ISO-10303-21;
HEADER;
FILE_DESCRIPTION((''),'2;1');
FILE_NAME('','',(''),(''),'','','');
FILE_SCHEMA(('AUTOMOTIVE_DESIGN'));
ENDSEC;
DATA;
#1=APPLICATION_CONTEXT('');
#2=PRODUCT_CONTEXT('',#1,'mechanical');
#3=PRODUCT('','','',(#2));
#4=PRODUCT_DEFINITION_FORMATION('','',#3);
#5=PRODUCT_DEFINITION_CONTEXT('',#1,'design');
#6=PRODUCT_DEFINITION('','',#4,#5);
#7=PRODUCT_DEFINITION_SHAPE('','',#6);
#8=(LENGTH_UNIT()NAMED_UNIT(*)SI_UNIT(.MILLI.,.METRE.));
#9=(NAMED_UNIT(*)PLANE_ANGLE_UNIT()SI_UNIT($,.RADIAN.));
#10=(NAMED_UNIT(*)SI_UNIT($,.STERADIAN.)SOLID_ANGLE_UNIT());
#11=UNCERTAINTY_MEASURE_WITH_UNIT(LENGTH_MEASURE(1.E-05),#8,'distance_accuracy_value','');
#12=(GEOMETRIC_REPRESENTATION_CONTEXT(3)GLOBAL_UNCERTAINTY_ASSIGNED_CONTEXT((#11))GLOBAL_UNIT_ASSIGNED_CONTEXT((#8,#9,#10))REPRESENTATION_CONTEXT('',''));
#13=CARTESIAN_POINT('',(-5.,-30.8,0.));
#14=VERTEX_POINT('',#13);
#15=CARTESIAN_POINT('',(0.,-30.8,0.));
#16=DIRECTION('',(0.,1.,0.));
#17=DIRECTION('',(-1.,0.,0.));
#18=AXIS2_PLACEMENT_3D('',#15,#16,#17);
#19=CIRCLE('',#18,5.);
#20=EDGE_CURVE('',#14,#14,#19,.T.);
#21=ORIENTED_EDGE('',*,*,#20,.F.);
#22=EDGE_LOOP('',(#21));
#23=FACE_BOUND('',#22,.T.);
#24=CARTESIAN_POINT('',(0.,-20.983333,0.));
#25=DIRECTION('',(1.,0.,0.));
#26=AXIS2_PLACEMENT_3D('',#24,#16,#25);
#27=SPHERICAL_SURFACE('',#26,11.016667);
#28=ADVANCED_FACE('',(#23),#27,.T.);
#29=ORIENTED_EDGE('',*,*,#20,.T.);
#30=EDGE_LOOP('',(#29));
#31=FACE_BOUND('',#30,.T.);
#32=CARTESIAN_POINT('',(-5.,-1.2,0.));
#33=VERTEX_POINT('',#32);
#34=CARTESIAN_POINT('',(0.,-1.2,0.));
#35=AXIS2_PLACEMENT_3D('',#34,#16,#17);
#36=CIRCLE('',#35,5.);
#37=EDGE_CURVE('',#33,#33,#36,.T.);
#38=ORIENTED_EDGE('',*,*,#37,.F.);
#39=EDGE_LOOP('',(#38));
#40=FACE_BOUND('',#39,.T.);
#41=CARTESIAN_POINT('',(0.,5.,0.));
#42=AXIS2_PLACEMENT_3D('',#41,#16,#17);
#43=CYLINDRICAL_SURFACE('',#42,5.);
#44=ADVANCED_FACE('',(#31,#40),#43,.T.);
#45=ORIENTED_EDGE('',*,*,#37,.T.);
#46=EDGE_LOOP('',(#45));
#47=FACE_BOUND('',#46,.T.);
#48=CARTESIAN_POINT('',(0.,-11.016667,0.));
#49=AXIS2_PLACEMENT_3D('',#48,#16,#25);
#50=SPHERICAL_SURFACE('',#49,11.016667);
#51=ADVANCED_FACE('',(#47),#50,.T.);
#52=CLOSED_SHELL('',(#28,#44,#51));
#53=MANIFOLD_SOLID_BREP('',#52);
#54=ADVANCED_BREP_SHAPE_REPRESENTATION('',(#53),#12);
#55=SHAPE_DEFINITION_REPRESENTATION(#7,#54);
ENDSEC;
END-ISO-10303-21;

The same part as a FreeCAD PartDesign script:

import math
import FreeCAD as App
import Part
import Sketcher

V = App.Vector

doc = App.newDocument("Part")
body = doc.addObject("PartDesign::Body", "Body")

# Sketch on XY plane
sketch1 = doc.addObject("Sketcher::SketchObject", "Sketch")
body.addObject(sketch1)
sketch1.AttachmentSupport = (doc.XY_Plane, [""])
sketch1.MapMode = "FlatFace"
sketch1.addGeometry([
    Part.LineSegment(V(5, -31, 0), V(5, -1, 0)),
    Part.ArcOfCircle(Part.Circle(V(0, -11, 0), V(0, 0, 1), 11), math.radians(63), math.radians(90)),
    Part.LineSegment(V(0, 0, 0), V(0, -32, 0)),
    Part.ArcOfCircle(Part.Circle(V(0, -21, 0), V(0, 0, 1), 11), math.radians(-90), math.radians(-63)),
], False)
sketch1.addConstraint([
    Sketcher.Constraint("Coincident", 0, 2, 1, 1),
    Sketcher.Constraint("Coincident", 1, 2, 2, 1),
    Sketcher.Constraint("Coincident", 2, 2, 3, 1),
    Sketcher.Constraint("Coincident", 3, 2, 0, 1),
    Sketcher.Constraint("Vertical", 0),
    Sketcher.Constraint("Vertical", 2),
    Sketcher.Constraint("Coincident", 1, 2, -1, 1),
    Sketcher.Constraint("Equal", 1, 3),
    Sketcher.Constraint("PointOnObject", 1, 3, -2),
    Sketcher.Constraint("PointOnObject", 3, 3, -2),
    Sketcher.Constraint("DistanceY", 2, 2, 2, 1, 32.0),
    Sketcher.Constraint("DistanceY", 0, 1, 0, 2, 29.6),
    Sketcher.Constraint("DistanceX", -1, 1, 0, 2, 5.0),
])
revolution = doc.addObject("PartDesign::Revolution", "Revolution")
body.addObject(revolution)
revolution.Profile = sketch1
revolution.ReferenceAxis = (sketch1, ["V_Axis"])
revolution.Angle = 360

doc.recompute()
